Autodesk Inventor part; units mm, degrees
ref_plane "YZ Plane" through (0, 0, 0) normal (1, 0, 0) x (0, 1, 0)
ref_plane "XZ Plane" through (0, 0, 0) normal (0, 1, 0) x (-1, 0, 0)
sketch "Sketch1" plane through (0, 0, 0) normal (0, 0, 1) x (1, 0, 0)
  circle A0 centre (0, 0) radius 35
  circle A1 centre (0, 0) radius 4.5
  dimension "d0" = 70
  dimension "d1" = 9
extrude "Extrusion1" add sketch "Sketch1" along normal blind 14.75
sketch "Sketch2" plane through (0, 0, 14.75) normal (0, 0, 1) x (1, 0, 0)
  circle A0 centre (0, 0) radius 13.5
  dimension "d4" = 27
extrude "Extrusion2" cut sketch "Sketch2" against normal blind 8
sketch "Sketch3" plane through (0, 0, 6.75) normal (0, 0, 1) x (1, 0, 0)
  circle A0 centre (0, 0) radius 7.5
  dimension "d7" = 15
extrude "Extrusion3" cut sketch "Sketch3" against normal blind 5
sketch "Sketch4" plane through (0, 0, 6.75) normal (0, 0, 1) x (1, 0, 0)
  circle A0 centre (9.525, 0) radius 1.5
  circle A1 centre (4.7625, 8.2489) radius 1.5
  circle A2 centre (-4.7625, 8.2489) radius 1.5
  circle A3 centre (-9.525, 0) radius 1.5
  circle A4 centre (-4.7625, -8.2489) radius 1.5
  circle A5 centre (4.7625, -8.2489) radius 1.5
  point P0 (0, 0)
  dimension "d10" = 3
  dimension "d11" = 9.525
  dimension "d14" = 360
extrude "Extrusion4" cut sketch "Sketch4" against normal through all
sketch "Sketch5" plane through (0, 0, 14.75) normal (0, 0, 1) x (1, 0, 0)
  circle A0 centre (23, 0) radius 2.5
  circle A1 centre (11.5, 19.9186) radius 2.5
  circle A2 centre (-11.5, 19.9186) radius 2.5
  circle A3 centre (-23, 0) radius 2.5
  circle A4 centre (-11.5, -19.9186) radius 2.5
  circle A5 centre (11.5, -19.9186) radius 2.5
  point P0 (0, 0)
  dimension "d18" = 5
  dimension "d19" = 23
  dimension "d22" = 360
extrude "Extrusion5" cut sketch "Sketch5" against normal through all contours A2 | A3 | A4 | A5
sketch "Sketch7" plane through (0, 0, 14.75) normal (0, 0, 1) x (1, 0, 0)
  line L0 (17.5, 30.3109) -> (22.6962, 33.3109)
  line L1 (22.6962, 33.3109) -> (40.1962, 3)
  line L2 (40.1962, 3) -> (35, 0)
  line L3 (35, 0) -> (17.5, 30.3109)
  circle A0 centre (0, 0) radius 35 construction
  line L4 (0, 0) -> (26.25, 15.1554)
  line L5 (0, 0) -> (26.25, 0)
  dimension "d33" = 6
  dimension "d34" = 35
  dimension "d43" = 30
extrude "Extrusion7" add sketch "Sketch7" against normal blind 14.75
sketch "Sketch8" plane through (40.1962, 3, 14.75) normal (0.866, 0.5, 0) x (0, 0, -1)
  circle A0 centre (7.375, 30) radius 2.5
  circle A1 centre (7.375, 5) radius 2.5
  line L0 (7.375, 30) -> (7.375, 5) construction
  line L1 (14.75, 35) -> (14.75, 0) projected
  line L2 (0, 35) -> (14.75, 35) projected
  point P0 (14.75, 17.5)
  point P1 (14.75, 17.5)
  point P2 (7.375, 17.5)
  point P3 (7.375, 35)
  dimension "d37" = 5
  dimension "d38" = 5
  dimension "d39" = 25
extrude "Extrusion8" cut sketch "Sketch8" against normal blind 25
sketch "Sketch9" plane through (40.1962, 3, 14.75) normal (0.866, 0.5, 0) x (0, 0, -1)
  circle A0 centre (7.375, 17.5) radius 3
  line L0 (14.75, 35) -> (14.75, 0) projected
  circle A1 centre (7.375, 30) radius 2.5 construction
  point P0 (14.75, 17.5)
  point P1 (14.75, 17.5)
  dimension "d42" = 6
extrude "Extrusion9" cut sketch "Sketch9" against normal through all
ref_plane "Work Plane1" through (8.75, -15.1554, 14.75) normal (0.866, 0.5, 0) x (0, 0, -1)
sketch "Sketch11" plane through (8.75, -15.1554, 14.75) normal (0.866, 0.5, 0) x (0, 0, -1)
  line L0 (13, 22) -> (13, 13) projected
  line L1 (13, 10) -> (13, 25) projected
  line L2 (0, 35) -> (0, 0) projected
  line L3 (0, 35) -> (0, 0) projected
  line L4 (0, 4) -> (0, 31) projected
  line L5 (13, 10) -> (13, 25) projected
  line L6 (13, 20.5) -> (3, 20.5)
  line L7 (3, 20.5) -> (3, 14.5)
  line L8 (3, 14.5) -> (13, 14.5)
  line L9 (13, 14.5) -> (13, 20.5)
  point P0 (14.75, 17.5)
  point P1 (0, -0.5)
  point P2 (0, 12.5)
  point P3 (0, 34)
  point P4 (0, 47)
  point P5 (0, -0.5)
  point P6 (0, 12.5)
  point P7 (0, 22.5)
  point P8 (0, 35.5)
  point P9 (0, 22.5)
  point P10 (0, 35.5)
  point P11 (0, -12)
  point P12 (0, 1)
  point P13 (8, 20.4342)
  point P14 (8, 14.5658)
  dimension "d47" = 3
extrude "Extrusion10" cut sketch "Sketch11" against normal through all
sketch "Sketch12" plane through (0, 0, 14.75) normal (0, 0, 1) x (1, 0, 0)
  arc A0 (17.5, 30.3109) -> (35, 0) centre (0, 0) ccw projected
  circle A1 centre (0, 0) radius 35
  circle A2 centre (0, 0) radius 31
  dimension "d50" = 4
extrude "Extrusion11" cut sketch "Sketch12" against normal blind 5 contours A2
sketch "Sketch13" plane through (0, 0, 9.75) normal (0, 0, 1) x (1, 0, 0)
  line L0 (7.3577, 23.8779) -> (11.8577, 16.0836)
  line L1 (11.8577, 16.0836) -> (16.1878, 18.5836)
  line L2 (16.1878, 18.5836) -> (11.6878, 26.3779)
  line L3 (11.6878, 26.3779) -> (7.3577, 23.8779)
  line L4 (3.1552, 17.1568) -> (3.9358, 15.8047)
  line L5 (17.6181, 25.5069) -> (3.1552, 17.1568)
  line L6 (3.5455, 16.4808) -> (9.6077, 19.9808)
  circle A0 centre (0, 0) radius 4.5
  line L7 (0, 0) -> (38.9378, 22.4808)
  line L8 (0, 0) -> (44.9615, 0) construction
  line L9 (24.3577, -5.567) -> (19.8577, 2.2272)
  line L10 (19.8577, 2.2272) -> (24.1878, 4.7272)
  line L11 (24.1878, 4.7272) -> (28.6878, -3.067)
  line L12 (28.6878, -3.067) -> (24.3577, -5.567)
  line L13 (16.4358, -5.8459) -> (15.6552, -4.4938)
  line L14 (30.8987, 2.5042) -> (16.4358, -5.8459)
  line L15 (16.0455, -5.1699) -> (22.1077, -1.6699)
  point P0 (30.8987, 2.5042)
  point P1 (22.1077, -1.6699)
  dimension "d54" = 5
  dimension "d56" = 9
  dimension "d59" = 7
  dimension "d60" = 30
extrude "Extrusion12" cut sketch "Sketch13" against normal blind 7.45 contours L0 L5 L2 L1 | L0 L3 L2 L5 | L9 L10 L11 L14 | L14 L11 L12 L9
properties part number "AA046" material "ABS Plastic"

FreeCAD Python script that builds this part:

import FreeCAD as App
import Part
import Sketcher
Q = App.Units.Quantity

doc = App.newDocument("Part")
body = doc.addObject("PartDesign::Body", "Body")

# Sketch on XY plane
sketch1 = body.newObject("Sketcher::SketchObject", "Sketch")
sketch1.AttachmentSupport = (doc.getObject("XY_Plane"), [""])
sketch1.MapMode = "FlatFace"
sketch1.addGeometry(Part.Circle(App.Vector(0, 0, 0), App.Vector(0, 0, 1), 35), False)
sketch1.addGeometry(Part.Circle(App.Vector(0, 0, 0), App.Vector(0, 0, 1), 4.5), False)
sketch1.addConstraint(Sketcher.Constraint("Coincident", 0, 3, -1, 1))
sketch1.addConstraint(Sketcher.Constraint("Coincident", 1, 3, -1, 1))
sketch1.addConstraint(Sketcher.Constraint("Diameter", 0, Q("70 mm")))
sketch1.addConstraint(Sketcher.Constraint("Diameter", 1, Q("9 mm")))
pad1 = body.newObject("PartDesign::Pad", "Pad")
pad1.Profile = sketch1
pad1.Length = 14.75

# Sketch on XY plane
sketch2 = body.newObject("Sketcher::SketchObject", "Sketch001")
sketch2.AttachmentSupport = (doc.getObject("XY_Plane"), [""])
sketch2.MapMode = "FlatFace"
sketch2.AttachmentOffset = App.Placement(App.Vector(0, 0, 14.75), App.Rotation())
sketch2.addGeometry(Part.Circle(App.Vector(0, 0, 0), App.Vector(0, 0, 1), 14), False)
sketch2.addConstraint(Sketcher.Constraint("Coincident", 0, 3, -1, 1))
sketch2.addConstraint(Sketcher.Constraint("Diameter", 0, Q("27 mm")))
pocket1 = body.newObject("PartDesign::Pocket", "Pocket")
pocket1.Profile = sketch2
pocket1.Length = 8

# Sketch on XY plane
sketch3 = body.newObject("Sketcher::SketchObject", "Sketch002")
sketch3.AttachmentSupport = (doc.getObject("XY_Plane"), [""])
sketch3.MapMode = "FlatFace"
sketch3.AttachmentOffset = App.Placement(App.Vector(0, 0, 6.75), App.Rotation())
sketch3.addGeometry(Part.Circle(App.Vector(0, 0, 0), App.Vector(0, 0, 1), 8), False)
sketch3.addConstraint(Sketcher.Constraint("Coincident", 0, 3, -1, 1))
sketch3.addConstraint(Sketcher.Constraint("Diameter", 0, Q("15 mm")))
pocket2 = body.newObject("PartDesign::Pocket", "Pocket001")
pocket2.Profile = sketch3
pocket2.Length = 5

# Sketch on XY plane
sketch4 = body.newObject("Sketcher::SketchObject", "Sketch003")
sketch4.AttachmentSupport = (doc.getObject("XY_Plane"), [""])
sketch4.MapMode = "FlatFace"
sketch4.AttachmentOffset = App.Placement(App.Vector(0, 0, 6.75), App.Rotation())
sketch4.addGeometry(Part.Circle(App.Vector(9.5, 0, 0), App.Vector(0, 0, 1), 1.5), False)
sketch4.addGeometry(Part.Circle(App.Vector(4.8, 8.2, 0), App.Vector(0, 0, 1), 1.5), False)
sketch4.addGeometry(Part.Circle(App.Vector(-4.8, 8.2, 0), App.Vector(0, 0, 1), 1.5), False)
sketch4.addGeometry(Part.Circle(App.Vector(-9.5, 0, 0), App.Vector(0, 0, 1), 1.5), False)
sketch4.addGeometry(Part.Circle(App.Vector(-4.8, -8.2, 0), App.Vector(0, 0, 1), 1.5), False)
sketch4.addGeometry(Part.Circle(App.Vector(4.8, -8.2, 0), App.Vector(0, 0, 1), 1.5), False)
sketch4.addConstraint(Sketcher.Constraint("Equal", 0, 1))
sketch4.addConstraint(Sketcher.Constraint("Equal", 1, 2))
sketch4.addConstraint(Sketcher.Constraint("Equal", 2, 3))
sketch4.addConstraint(Sketcher.Constraint("Equal", 3, 4))
sketch4.addConstraint(Sketcher.Constraint("Equal", 4, 5))
sketch4.addConstraint(Sketcher.Constraint("Symmetric", 0, 3, 3, 3, -1, 1))
sketch4.addConstraint(Sketcher.Constraint("Symmetric", 1, 3, 4, 3, -1, 1))
sketch4.addConstraint(Sketcher.Constraint("Symmetric", 2, 3, 5, 3, -1, 1))
sketch4.addConstraint(Sketcher.Constraint("Symmetric", 1, 3, 2, 3, -2))
sketch4.addConstraint(Sketcher.Constraint("PointOnObject", 0, 3, -1))
sketch4.addConstraint(Sketcher.Constraint("Diameter", 0, Q("3 mm")))
sketch4.addConstraint(Sketcher.Constraint("DistanceX", -1, 1, 0, 3, Q("9.525 mm")))
sketch4.addConstraint(Sketcher.Constraint("DistanceX", 2, 3, 1, 3, Q("9.525 mm")))
sketch4.addConstraint(Sketcher.Constraint("DistanceY", -1, 1, 1, 3, Q("8.249 mm")))
pocket3 = body.newObject("PartDesign::Pocket", "Pocket002")
pocket3.Profile = sketch4
pocket3.Type = "ThroughAll"

# Sketch on XY plane
sketch5 = body.newObject("Sketcher::SketchObject", "Sketch004")
sketch5.AttachmentSupport = (doc.getObject("XY_Plane"), [""])
sketch5.MapMode = "FlatFace"
sketch5.AttachmentOffset = App.Placement(App.Vector(0, 0, 14.75), App.Rotation())
sketch5.addGeometry(Part.Circle(App.Vector(-11.5, 19.9, 0), App.Vector(0, 0, 1), 2.5), False)
sketch5.addGeometry(Part.Circle(App.Vector(-23, 0, 0), App.Vector(0, 0, 1), 2.5), False)
sketch5.addGeometry(Part.Circle(App.Vector(-11.5, -19.9, 0), App.Vector(0, 0, 1), 2.5), False)
sketch5.addGeometry(Part.Circle(App.Vector(11.5, -19.9, 0), App.Vector(0, 0, 1), 2.5), False)
sketch5.addConstraint(Sketcher.Constraint("Equal", 0, 1))
sketch5.addConstraint(Sketcher.Constraint("Equal", 1, 2))
sketch5.addConstraint(Sketcher.Constraint("Equal", 2, 3))
sketch5.addConstraint(Sketcher.Constraint("Symmetric", 0, 3, 3, 3, -1, 1))
sketch5.addConstraint(Sketcher.Constraint("Symmetric", 2, 3, 3, 3, -2))
sketch5.addConstraint(Sketcher.Constraint("PointOnObject", 1, 3, -1))
sketch5.addConstraint(Sketcher.Constraint("Diameter", 0, Q("5 mm")))
sketch5.addConstraint(Sketcher.Constraint("DistanceX", 1, 3, -1, 1, Q("23 mm")))
sketch5.addConstraint(Sketcher.Constraint("DistanceX", 2, 3, 3, 3, Q("23 mm")))
sketch5.addConstraint(Sketcher.Constraint("DistanceY", -1, 1, 0, 3, Q("19.9186 mm")))
pocket4 = body.newObject("PartDesign::Pocket", "Pocket003")
pocket4.Profile = sketch5
pocket4.Type = "ThroughAll"

# Sketch on XY plane
sketch6 = body.newObject("Sketcher::SketchObject", "Sketch005")
sketch6.AttachmentSupport = (doc.getObject("XY_Plane"), [""])
sketch6.MapMode = "FlatFace"
sketch6.AttachmentOffset = App.Placement(App.Vector(0, 0, 14.75), App.Rotation())
sketch6.addGeometry(Part.LineSegment(App.Vector(23, 33, 0), App.Vector(18, 30, 0)), False)
sketch6.addGeometry(Part.LineSegment(App.Vector(18, 30, 0), App.Vector(35, 0, 0)), False)
sketch6.addGeometry(Part.LineSegment(App.Vector(35, 0, 0), App.Vector(40, 3, 0)), False)
sketch6.addGeometry(Part.LineSegment(App.Vector(40, 3, 0), App.Vector(23, 33, 0)), False)
sketch6.addConstraint(Sketcher.Constraint("Coincident", 0, 2, 1, 1))
sketch6.addConstraint(Sketcher.Constraint("Coincident", 1, 2, 2, 1))
sketch6.addConstraint(Sketcher.Constraint("Coincident", 2, 2, 3, 1))
sketch6.addConstraint(Sketcher.Constraint("Coincident", 3, 2, 0, 1))
sketch6.addConstraint(Sketcher.Constraint("PointOnObject", 1, 2, -1))
sketch6.addConstraint(Sketcher.Constraint("Perpendicular", 0, 1))
sketch6.addConstraint(Sketcher.Constraint("Perpendicular", 1, 2))
sketch6.addConstraint(Sketcher.Constraint("Perpendicular", 2, 3))
sketch6.addConstraint(Sketcher.Constraint("Angle", 2, Q("29.9998 deg")))
sketch6.addConstraint(Sketcher.Constraint("Distance", 0, Q("6 mm")))
sketch6.addConstraint(Sketcher.Constraint("Distance", 1, Q("35 mm")))
sketch6.addConstraint(Sketcher.Constraint("DistanceX", -1, 1, 1, 2, Q("35 mm")))
pad2 = body.newObject("PartDesign::Pad", "Pad001")
pad2.Profile = sketch6
pad2.Length = 14.75
pad2.Reversed = True

# Sketch on an angled plane
sketch7 = body.newObject("Sketcher::SketchObject", "Sketch006")
sketch7.Placement = App.Placement(App.Vector(40.1962, 3, 14.75), App.Rotation(App.Vector(0, 0, -1), App.Vector(-0.5, 0.866025404, 0), App.Vector(0.866025404, 0.5, 0), "ZXY"))
sketch7.addGeometry(Part.Circle(App.Vector(7.4, 30, 0), App.Vector(0, 0, 1), 2.5), False)
sketch7.addGeometry(Part.Circle(App.Vector(7.4, 5, 0), App.Vector(0, 0, 1), 2.5), False)
sketch7.addConstraint(Sketcher.Constraint("Equal", 0, 1))
sketch7.addConstraint(Sketcher.Constraint("Vertical", 0, 3, 1, 3))
sketch7.addConstraint(Sketcher.Constraint("Diameter", 0, Q("5 mm")))
sketch7.addConstraint(Sketcher.Constraint("DistanceY", -1, 1, 1, 3, Q("5 mm")))
sketch7.addConstraint(Sketcher.Constraint("DistanceY", 1, 3, 0, 3, Q("25 mm")))
sketch7.addConstraint(Sketcher.Constraint("DistanceX", -1, 1, 0, 3, Q("7.375 mm")))
pocket5 = body.newObject("PartDesign::Pocket", "Pocket004")
pocket5.Profile = sketch7
pocket5.Length = 25

# Sketch on an angled plane
sketch8 = body.newObject("Sketcher::SketchObject", "Sketch007")
sketch8.Placement = App.Placement(App.Vector(40.1962, 3, 14.75), App.Rotation(App.Vector(0, 0, -1), App.Vector(-0.5, 0.866025404, 0), App.Vector(0.866025404, 0.5, 0), "ZXY"))
sketch8.addGeometry(Part.Circle(App.Vector(7.4, 17.5, 0), App.Vector(0, 0, 1), 3), False)
sketch8.addConstraint(Sketcher.Constraint("Diameter", 0, Q("6 mm")))
sketch8.addConstraint(Sketcher.Constraint("DistanceY", -1, 1, 0, 3, Q("17.5 mm")))
sketch8.addConstraint(Sketcher.Constraint("DistanceX", -1, 1, 0, 3, Q("7.375 mm")))
pocket6 = body.newObject("PartDesign::Pocket", "Pocket005")
pocket6.Profile = sketch8
pocket6.Type = "ThroughAll"

# Sketch on an angled plane
sketch9 = body.newObject("Sketcher::SketchObject", "Sketch008")
sketch9.Placement = App.Placement(App.Vector(8.75, -15.1554, 14.75), App.Rotation(App.Vector(0, 0, -1), App.Vector(-0.5, 0.866025404, 0), App.Vector(0.866025404, 0.5, 0), "ZXY"))
sketch9.addGeometry(Part.LineSegment(App.Vector(13, 15, 0), App.Vector(13, 21, 0)), False)
sketch9.addGeometry(Part.LineSegment(App.Vector(13, 21, 0), App.Vector(3, 21, 0)), False)
sketch9.addGeometry(Part.LineSegment(App.Vector(3, 21, 0), App.Vector(3, 15, 0)), False)
sketch9.addGeometry(Part.LineSegment(App.Vector(3, 15, 0), App.Vector(13, 15, 0)), False)
sketch9.addConstraint(Sketcher.Constraint("Coincident", 0, 2, 1, 1))
sketch9.addConstraint(Sketcher.Constraint("Coincident", 1, 2, 2, 1))
sketch9.addConstraint(Sketcher.Constraint("Coincident", 2, 2, 3, 1))
sketch9.addConstraint(Sketcher.Constraint("Coincident", 3, 2, 0, 1))
sketch9.addConstraint(Sketcher.Constraint("Vertical", 0))
sketch9.addConstraint(Sketcher.Constraint("Horizontal", 1))
sketch9.addConstraint(Sketcher.Constraint("Vertical", 2))
sketch9.addConstraint(Sketcher.Constraint("Horizontal", 3))
sketch9.addConstraint(Sketcher.Constraint("DistanceX", -1, 1, 1, 2, Q("3 mm")))
sketch9.addConstraint(Sketcher.Constraint("DistanceX", 1, 2, 1, 1, Q("10 mm")))
sketch9.addConstraint(Sketcher.Constraint("DistanceY", 0, 1, 0, 2, Q("6 mm")))
sketch9.addConstraint(Sketcher.Constraint("DistanceY", -1, 1, 0, 2, Q("20.5 mm")))
pocket7 = body.newObject("PartDesign::Pocket", "Pocket006")
pocket7.Profile = sketch9
pocket7.Type = "ThroughAll"

# Sketch on XY plane
sketch10 = body.newObject("Sketcher::SketchObject", "Sketch009")
sketch10.AttachmentSupport = (doc.getObject("XY_Plane"), [""])
sketch10.MapMode = "FlatFace"
sketch10.AttachmentOffset = App.Placement(App.Vector(0, 0, 14.75), App.Rotation())
sketch10.addGeometry(Part.Circle(App.Vector(0, 0, 0), App.Vector(0, 0, 1), 31), False)
sketch10.addConstraint(Sketcher.Constraint("Coincident", 0, 3, -1, 1))
sketch10.addConstraint(Sketcher.Constraint("Diameter", 0, Q("62 mm")))
pocket8 = body.newObject("PartDesign::Pocket", "Pocket007")
pocket8.Profile = sketch10
pocket8.Length = 5

# Sketch on XY plane
sketch11 = body.newObject("Sketcher::SketchObject", "Sketch010")
sketch11.AttachmentSupport = (doc.getObject("XY_Plane"), [""])
sketch11.MapMode = "FlatFace"
sketch11.AttachmentOffset = App.Placement(App.Vector(0, 0, 9.75), App.Rotation())
sketch11.addGeometry(Part.LineSegment(App.Vector(11.9, 16.1, 0), App.Vector(16.2, 18.6, 0)), False)
sketch11.addGeometry(Part.LineSegment(App.Vector(16.2, 18.6, 0), App.Vector(11.7, 26.4, 0)), False)
sketch11.addGeometry(Part.LineSegment(App.Vector(11.7, 26.4, 0), App.Vector(7.4, 23.9, 0)), False)
sketch11.addGeometry(Part.LineSegment(App.Vector(7.4, 23.9, 0), App.Vector(11.9, 16.1, 0)), False)
sketch11.addGeometry(Part.LineSegment(App.Vector(19.9, 2.2, 0), App.Vector(24.4, -5.6, 0)), False)
sketch11.addGeometry(Part.LineSegment(App.Vector(24.4, -5.6, 0), App.Vector(28.7, -3.1, 0)), False)
sketch11.addGeometry(Part.LineSegment(App.Vector(28.7, -3.1, 0), App.Vector(24.2, 4.7, 0)), False)
sketch11.addGeometry(Part.LineSegment(App.Vector(24.2, 4.7, 0), App.Vector(19.9, 2.2, 0)), False)
sketch11.addConstraint(Sketcher.Constraint("Coincident", 0, 2, 1, 1))
sketch11.addConstraint(Sketcher.Constraint("Coincident", 1, 2, 2, 1))
sketch11.addConstraint(Sketcher.Constraint("Coincident", 2, 2, 3, 1))
sketch11.addConstraint(Sketcher.Constraint("Coincident", 3, 2, 0, 1))
sketch11.addConstraint(Sketcher.Constraint("Coincident", 4, 2, 5, 1))
sketch11.addConstraint(Sketcher.Constraint("Coincident", 5, 2, 6, 1))
sketch11.addConstraint(Sketcher.Constraint("Coincident", 6, 2, 7, 1))
sketch11.addConstraint(Sketcher.Constraint("Coincident", 7, 2, 4, 1))
sketch11.addConstraint(Sketcher.Constraint("Perpendicular", 0, 1))
sketch11.addConstraint(Sketcher.Constraint("Perpendicular", 1, 2))
sketch11.addConstraint(Sketcher.Constraint("Perpendicular", 2, 3))
sketch11.addConstraint(Sketcher.Constraint("Parallel", 3, 4))
sketch11.addConstraint(Sketcher.Constraint("Perpendicular", 4, 5))
sketch11.addConstraint(Sketcher.Constraint("Perpendicular", 5, 6))
sketch11.addConstraint(Sketcher.Constraint("Perpendicular", 6, 7))
sketch11.addConstraint(Sketcher.Constraint("Equal", 3, 4))
sketch11.addConstraint(Sketcher.Constraint("Equal", 2, 5))
sketch11.addConstraint(Sketcher.Constraint("Angle", 0, Q("30.0002 deg")))
sketch11.addConstraint(Sketcher.Constraint("Distance", 0, Q("5 mm")))
sketch11.addConstraint(Sketcher.Constraint("Distance", 1, Q("9 mm")))
sketch11.addConstraint(Sketcher.Constraint("DistanceX", 2, 2, 4, 2, Q("17 mm")))
sketch11.addConstraint(Sketcher.Constraint("DistanceY", -1, 1, 1, 2, Q("26.378 mm")))
sketch11.addConstraint(Sketcher.Constraint("DistanceY", 4, 2, -1, 1, Q("5.567 mm")))
sketch11.addConstraint(Sketcher.Constraint("DistanceX", -1, 1, 0, 2, Q("16.1878 mm")))
pocket9 = body.newObject("PartDesign::Pocket", "Pocket008")
pocket9.Profile = sketch11
pocket9.Length = 7.45

doc.recompute()
